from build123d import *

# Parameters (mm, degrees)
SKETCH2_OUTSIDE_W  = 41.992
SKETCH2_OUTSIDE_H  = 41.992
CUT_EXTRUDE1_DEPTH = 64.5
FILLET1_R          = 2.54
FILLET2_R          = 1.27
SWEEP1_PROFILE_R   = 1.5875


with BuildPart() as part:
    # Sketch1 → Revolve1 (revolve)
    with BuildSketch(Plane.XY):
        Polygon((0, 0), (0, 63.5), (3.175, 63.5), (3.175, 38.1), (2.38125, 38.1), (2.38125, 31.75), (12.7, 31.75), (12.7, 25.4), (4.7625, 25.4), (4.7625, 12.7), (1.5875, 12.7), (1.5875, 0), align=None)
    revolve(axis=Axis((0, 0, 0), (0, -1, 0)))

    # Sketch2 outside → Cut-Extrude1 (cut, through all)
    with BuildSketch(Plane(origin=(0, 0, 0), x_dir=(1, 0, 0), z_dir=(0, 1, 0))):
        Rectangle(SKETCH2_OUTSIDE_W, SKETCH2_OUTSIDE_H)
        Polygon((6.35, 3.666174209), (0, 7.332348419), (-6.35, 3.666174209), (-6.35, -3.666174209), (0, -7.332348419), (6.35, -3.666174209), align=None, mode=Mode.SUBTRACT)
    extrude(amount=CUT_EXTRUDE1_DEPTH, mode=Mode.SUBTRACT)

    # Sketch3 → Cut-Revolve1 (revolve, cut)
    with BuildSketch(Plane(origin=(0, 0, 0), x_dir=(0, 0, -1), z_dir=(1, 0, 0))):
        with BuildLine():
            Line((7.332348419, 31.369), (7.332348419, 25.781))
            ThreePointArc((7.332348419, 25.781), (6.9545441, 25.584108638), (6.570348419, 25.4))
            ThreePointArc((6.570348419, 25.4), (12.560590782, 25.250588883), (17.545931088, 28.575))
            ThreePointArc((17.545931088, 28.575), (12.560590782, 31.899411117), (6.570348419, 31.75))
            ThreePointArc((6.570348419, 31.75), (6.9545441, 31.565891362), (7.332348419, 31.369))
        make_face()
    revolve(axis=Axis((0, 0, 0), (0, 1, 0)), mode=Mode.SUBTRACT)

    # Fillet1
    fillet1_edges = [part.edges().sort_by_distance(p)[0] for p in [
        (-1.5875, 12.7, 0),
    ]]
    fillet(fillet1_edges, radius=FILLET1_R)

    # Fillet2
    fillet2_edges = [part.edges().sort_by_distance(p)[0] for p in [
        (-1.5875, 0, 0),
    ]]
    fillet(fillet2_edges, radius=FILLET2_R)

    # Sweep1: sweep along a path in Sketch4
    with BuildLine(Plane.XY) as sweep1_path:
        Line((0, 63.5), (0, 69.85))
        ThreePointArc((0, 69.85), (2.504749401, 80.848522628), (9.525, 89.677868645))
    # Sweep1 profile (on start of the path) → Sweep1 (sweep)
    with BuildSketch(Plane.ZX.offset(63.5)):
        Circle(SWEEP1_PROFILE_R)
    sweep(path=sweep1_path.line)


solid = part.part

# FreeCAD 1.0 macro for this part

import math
import FreeCAD as App
import Part
import Sketcher
Q = App.Units.Quantity


def edges_at(feature, points):
    """Names of the edges that pass closest to the given points."""
    edges = feature.Shape.Edges
    near = lambda p: min(range(len(edges)), key=lambda i: edges[i].distToShape(Part.Vertex(*p))[0])
    return sorted({f"Edge{near(p) + 1}" for p in points})


def add_polygon(sketch, points):
    """Adds a closed chain of lines whose ends are joined by coincident constraints."""
    first, n = sketch.GeometryCount, len(points)
    for a, b in zip(points, points[1:] + points[:1]):
        sketch.addGeometry(Part.LineSegment(App.Vector(*a, 0), App.Vector(*b, 0)), False)
    for i in range(n):
        sketch.addConstraint(Sketcher.Constraint("Coincident", first + i, 2, first + (i + 1) % n, 1))

doc = App.newDocument("Part")
body = doc.addObject("PartDesign::Body", "Body")

# Sketch on XY plane
sketch1 = body.newObject("Sketcher::SketchObject", "Sketch")
sketch1.AttachmentSupport = (doc.getObject("XY_Plane"), [""])
sketch1.MapMode = "FlatFace"
add_polygon(sketch1, [(0, 63.5), (0, 0), (1.6, 0), (1.6, 12.7), (4.8, 12.7), (4.8, 25.4), (12.7, 25.4), (12.7, 31.8), (2.4, 31.8), (2.4, 38.1), (3.2, 38.1), (3.2, 63.5)])  # lines 0-11
sketch1.addConstraint(Sketcher.Constraint("Vertical", 0))
sketch1.addConstraint(Sketcher.Constraint("Horizontal", 1))
sketch1.addConstraint(Sketcher.Constraint("Vertical", 2))
sketch1.addConstraint(Sketcher.Constraint("Horizontal", 3))
sketch1.addConstraint(Sketcher.Constraint("Vertical", 4))
sketch1.addConstraint(Sketcher.Constraint("Horizontal", 5))
sketch1.addConstraint(Sketcher.Constraint("Vertical", 6))
sketch1.addConstraint(Sketcher.Constraint("Horizontal", 7))
sketch1.addConstraint(Sketcher.Constraint("Vertical", 8))
sketch1.addConstraint(Sketcher.Constraint("Horizontal", 9))
sketch1.addConstraint(Sketcher.Constraint("Vertical", 10))
sketch1.addConstraint(Sketcher.Constraint("Horizontal", 11))
sketch1.addConstraint(Sketcher.Constraint("Coincident", 0, 2, -1, 1))
sketch1.addConstraint(Sketcher.Constraint("Equal", 3, 11))
sketch1.addConstraint(Sketcher.Constraint("Equal", 2, 4))
sketch1.addConstraint(Sketcher.Constraint("Equal", 6, 8))
sketch1.addConstraint(Sketcher.Constraint("DistanceY", 10, 1, 10, 2, Q("1 in")))
sketch1.addConstraint(Sketcher.Constraint("DistanceY", 0, 2, 0, 1, Q("2.5 in")))
sketch1.addConstraint(Sketcher.Constraint("DistanceY", 2, 1, 2, 2, Q("0.5 in")))
sketch1.addConstraint(Sketcher.Constraint("DistanceX", -1, 1, 5, 2, Q("0.5 in")))
sketch1.addConstraint(Sketcher.Constraint("DistanceX", 1, 1, 1, 2, Q("0.0625 in")))
sketch1.addConstraint(Sketcher.Constraint("DistanceX", 3, 1, 3, 2, Q("0.125 in")))
sketch1.addConstraint(Sketcher.Constraint("DistanceX", 7, 2, 7, 1, Q("0.40625 in")))
revolution = body.newObject("PartDesign::Revolution", "Revolution")
revolution.Profile = sketch1
revolution.ReferenceAxis = (sketch1, ["V_Axis"])
revolution.Angle = 360

# Sketch on XZ plane
sketch2 = body.newObject("Sketcher::SketchObject", "Sketch001")
sketch2.AttachmentSupport = (doc.getObject("XZ_Plane"), [""])
sketch2.MapMode = "FlatFace"
add_polygon(sketch2, [(-21, -21), (-21, 21), (21, 21), (21, -21)])  # lines 0-3
add_polygon(sketch2, [(0, -7), (6, -4), (6, 4), (0, 7), (-6, 4), (-6, -4)])  # lines 4-9
sketch2.addConstraint(Sketcher.Constraint("Vertical", 0))
sketch2.addConstraint(Sketcher.Constraint("Horizontal", 1))
sketch2.addConstraint(Sketcher.Constraint("Vertical", 2))
sketch2.addConstraint(Sketcher.Constraint("Horizontal", 3))
sketch2.addConstraint(Sketcher.Constraint("Vertical", 5))
sketch2.addConstraint(Sketcher.Constraint("Vertical", 8))
sketch2.addConstraint(Sketcher.Constraint("Symmetric", 0, 2, 2, 2, -1, 1))
sketch2.addConstraint(Sketcher.Constraint("Symmetric", 4, 2, 7, 2, -1, 1))
sketch2.addConstraint(Sketcher.Constraint("Symmetric", 6, 2, 9, 2, -1, 1))
sketch2.addConstraint(Sketcher.Constraint("PointOnObject", 6, 2, -2))
sketch2.addConstraint(Sketcher.Constraint("Parallel", 6, 9))
sketch2.addConstraint(Sketcher.Constraint("Horizontal", 5, 2, 7, 2))
sketch2.addConstraint(Sketcher.Constraint("Equal", 3, 0))
sketch2.addConstraint(Sketcher.Constraint("Angle", 4, Q("30 deg")))
sketch2.addConstraint(Sketcher.Constraint("DistanceX", 7, 2, 5, 2, Q("0.5 in")))
sketch2.addConstraint(Sketcher.Constraint("DistanceX", 1, 1, 1, 2, Q("41.992 mm")))
sketch2.addConstraint(Sketcher.Constraint("DistanceY", 5, 1, 5, 2, Q("7.332348 mm")))
pocket1 = body.newObject("PartDesign::Pocket", "Pocket")
pocket1.Profile = sketch2
pocket1.Type = "ThroughAll"

# Sketch on YZ plane
sketch3 = body.newObject("Sketcher::SketchObject", "Sketch002")
sketch3.AttachmentSupport = (doc.getObject("YZ_Plane"), [""])
sketch3.MapMode = "FlatFace"
sketch3.addGeometry(Part.LineSegment(App.Vector(31.4, -7.3, 0), App.Vector(25.8, -7.3, 0)), False)
sketch3.addGeometry(Part.ArcOfCircle(Part.Circle(App.Vector(36.9, -1.3, 0), App.Vector(0, 0, 1), 12.7), math.radians(-155.36), math.radians(-151.51)), False)
sketch3.addGeometry(Part.ArcOfCircle(Part.Circle(App.Vector(34.8, -9.8, 0), App.Vector(0, 0, 1), 9.9), math.radians(161), math.radians(231)), False)
sketch3.addGeometry(Part.ArcOfCircle(Part.Circle(App.Vector(22.4, -9.8, 0), App.Vector(0, 0, 1), 9.9), math.radians(-51), math.radians(19)), False)
sketch3.addGeometry(Part.ArcOfCircle(Part.Circle(App.Vector(20.2, -1.3, 0), App.Vector(0, 0, 1), 12.7), math.radians(-28.49), math.radians(-24.64)), False)
sketch3.addConstraint(Sketcher.Constraint("Coincident", 0, 2, 1, 2))
sketch3.addConstraint(Sketcher.Constraint("Coincident", 1, 1, 2, 1))
sketch3.addConstraint(Sketcher.Constraint("Coincident", 2, 2, 3, 1))
sketch3.addConstraint(Sketcher.Constraint("Coincident", 3, 2, 4, 2))
sketch3.addConstraint(Sketcher.Constraint("Coincident", 4, 1, 0, 1))
sketch3.addConstraint(Sketcher.Constraint("Horizontal", 0))
sketch3.addConstraint(Sketcher.Constraint("Equal", 2, 3))
sketch3.addConstraint(Sketcher.Constraint("Equal", 1, 4))
sketch3.addConstraint(Sketcher.Constraint("Horizontal", 2, 3, 3, 3))
sketch3.addConstraint(Sketcher.Constraint("Horizontal", 1, 3, 4, 3))
sketch3.addConstraint(Sketcher.Constraint("Horizontal", 1, 1, 3, 2))
sketch3.addConstraint(Sketcher.Constraint("Radius", 1, Q("0.5 in")))
sketch3.addConstraint(Sketcher.Constraint("DistanceX", -1, 1, 1, 1, Q("1 in")))
sketch3.addConstraint(Sketcher.Constraint("DistanceX", 0, 2, 0, 1, Q("0.22 in")))
sketch3.addConstraint(Sketcher.Constraint("DistanceX", -1, 1, 3, 2, Q("1.25 in")))
sketch3.addConstraint(Sketcher.Constraint("DistanceY", 0, 2, 1, 1, Q("0.03 in")))
sketch3.addConstraint(Sketcher.Constraint("Radius", 2, Q("9.928882 mm")))
sketch3.addConstraint(Sketcher.Constraint("DistanceY", 2, 2, 4, 3, Q("16.271 mm")))
sketch3.addConstraint(Sketcher.Constraint("DistanceY", 1, 3, -1, 1, Q("1.274931 mm")))
groove = body.newObject("PartDesign::Groove", "Groove")
groove.Profile = sketch3
groove.ReferenceAxis = (sketch3, ["H_Axis"])
groove.Angle = 360
doc.recompute()

fillet = body.newObject("PartDesign::Fillet", "Fillet")
fillet.Base = (groove, edges_at(groove, [(-1.587, 12.7, 0)]))
fillet.Radius = Q("0.1 in")
doc.recompute()

fillet2 = body.newObject("PartDesign::Fillet", "Fillet001")
fillet2.Base = (fillet, edges_at(fillet, [(-1.587, 0, 0)]))
fillet2.Radius = Q("0.05 in")

# Sketch on XZ plane
sketch4 = body.newObject("Sketcher::SketchObject", "Sketch003")
sketch4.AttachmentSupport = (doc.getObject("XZ_Plane"), [""])
sketch4.MapMode = "FlatFace"
sketch4.AttachmentOffset = App.Placement(App.Vector(0, 0, -2.5 * 25.4), App.Rotation())
sketch4.addGeometry(Part.Circle(App.Vector(0, 0, 0), App.Vector(0, 0, 1), 1.6), False)
sketch4.addConstraint(Sketcher.Constraint("Coincident", 0, 3, -1, 1))
sketch4.addConstraint(Sketcher.Constraint("Diameter", 0, Q("0.125 in")))

# Sketch on XY plane
sketch5 = body.newObject("Sketcher::SketchObject", "Sketch004")
sketch5.AttachmentSupport = (doc.getObject("XY_Plane"), [""])
sketch5.MapMode = "FlatFace"
sketch5.addGeometry(Part.LineSegment(App.Vector(0, 64, 0), App.Vector(0, 70, 0)), False)
sketch5.addGeometry(Part.ArcOfCircle(Part.Circle(App.Vector(25, 70, 0), App.Vector(0, 0, 1), 25), math.radians(129), math.radians(180)), False)
sketch5.addConstraint(Sketcher.Constraint("Tangent", 0, 2, 1, 2))
sketch5.addConstraint(Sketcher.Constraint("Vertical", 0))
sketch5.addConstraint(Sketcher.Constraint("PointOnObject", 0, 1, -2))
sketch5.addConstraint(Sketcher.Constraint("Radius", 1, Q("1 in")))
sketch5.addConstraint(Sketcher.Constraint("DistanceY", 0, 1, 0, 2, Q("0.25 in")))
sketch5.addConstraint(Sketcher.Constraint("DistanceY", -1, 1, 0, 1, Q("2.5 in")))
sketch5.addConstraint(Sketcher.Constraint("DistanceX", -1, 1, 1, 1, Q("0.375 in")))
doc.recompute()

additivepipe = body.newObject("PartDesign::AdditivePipe", "AdditivePipe")
additivepipe.Profile = sketch4
additivepipe.Spine = (sketch5, ["Edge1", "Edge2"])

doc.recompute()
